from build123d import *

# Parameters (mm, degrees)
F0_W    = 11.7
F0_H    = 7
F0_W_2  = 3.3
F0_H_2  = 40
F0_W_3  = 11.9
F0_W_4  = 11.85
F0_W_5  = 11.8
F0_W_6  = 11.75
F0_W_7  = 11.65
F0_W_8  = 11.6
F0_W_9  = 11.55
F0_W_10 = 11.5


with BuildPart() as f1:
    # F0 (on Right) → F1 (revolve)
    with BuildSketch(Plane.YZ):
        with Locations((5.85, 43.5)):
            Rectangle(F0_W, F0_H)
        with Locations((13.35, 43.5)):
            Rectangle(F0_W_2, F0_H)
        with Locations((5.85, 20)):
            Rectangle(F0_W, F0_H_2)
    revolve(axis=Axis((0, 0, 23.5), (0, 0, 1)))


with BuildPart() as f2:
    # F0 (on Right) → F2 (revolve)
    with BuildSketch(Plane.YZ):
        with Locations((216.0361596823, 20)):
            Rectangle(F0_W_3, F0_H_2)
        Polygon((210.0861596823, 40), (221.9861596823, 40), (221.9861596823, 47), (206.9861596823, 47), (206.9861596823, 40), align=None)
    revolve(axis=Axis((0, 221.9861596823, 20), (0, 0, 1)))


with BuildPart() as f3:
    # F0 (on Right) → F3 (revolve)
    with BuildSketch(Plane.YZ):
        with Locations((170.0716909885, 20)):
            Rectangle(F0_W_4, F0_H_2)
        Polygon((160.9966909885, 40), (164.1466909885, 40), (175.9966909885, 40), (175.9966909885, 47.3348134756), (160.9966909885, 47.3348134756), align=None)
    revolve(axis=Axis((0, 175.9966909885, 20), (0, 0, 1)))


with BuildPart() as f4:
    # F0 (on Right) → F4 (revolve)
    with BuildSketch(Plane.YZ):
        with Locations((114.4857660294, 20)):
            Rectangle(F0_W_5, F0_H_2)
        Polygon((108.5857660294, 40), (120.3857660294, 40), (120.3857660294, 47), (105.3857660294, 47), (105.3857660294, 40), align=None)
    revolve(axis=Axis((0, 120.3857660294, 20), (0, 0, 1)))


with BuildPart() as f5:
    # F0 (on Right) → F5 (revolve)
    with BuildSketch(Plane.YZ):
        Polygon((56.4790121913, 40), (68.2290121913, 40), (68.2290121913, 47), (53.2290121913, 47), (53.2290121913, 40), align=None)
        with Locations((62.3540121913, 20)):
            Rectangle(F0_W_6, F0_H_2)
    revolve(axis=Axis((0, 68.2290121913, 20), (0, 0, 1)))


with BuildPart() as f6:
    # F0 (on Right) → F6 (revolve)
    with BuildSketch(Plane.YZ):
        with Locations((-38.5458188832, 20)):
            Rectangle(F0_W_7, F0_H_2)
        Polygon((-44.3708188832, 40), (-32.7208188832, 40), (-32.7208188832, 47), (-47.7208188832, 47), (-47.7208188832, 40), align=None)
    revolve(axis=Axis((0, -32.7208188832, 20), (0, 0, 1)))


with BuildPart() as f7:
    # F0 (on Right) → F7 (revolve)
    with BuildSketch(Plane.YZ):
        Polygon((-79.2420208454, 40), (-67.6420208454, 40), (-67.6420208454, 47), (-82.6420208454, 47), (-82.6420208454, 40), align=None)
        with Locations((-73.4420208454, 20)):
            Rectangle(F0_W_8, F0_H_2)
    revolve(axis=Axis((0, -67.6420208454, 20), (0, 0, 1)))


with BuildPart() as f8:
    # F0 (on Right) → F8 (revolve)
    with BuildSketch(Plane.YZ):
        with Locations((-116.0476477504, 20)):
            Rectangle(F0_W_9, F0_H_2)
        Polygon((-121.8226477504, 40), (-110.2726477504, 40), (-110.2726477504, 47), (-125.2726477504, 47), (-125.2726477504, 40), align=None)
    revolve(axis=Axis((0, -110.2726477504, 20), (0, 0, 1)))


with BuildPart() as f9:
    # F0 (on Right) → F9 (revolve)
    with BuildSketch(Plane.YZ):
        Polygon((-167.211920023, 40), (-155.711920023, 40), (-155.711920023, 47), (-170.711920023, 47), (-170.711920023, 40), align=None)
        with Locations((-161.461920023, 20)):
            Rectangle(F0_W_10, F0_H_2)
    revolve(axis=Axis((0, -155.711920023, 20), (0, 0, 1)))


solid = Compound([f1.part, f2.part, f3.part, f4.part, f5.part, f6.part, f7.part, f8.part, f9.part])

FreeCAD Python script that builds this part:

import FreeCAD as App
import Part
import Sketcher

doc = App.newDocument("Part")
body = doc.addObject("PartDesign::Body", "Body")

# Sketch on YZ plane
sketch1 = body.newObject("Sketcher::SketchObject", "Sketch")
sketch1.AttachmentSupport = (doc.getObject("YZ_Plane"), [""])
sketch1.MapMode = "FlatFace"
sketch1.addGeometry([
    Part.LineSegment(App.Vector(0, 47, 0), App.Vector(0, 0, 0)),  # 0
    Part.LineSegment(App.Vector(0, 0, 0), App.Vector(11.7, 0, 0)),  # 1
    Part.LineSegment(App.Vector(11.7, 0, 0), App.Vector(11.7, 40, 0)),  # 2
    Part.LineSegment(App.Vector(11.7, 40, 0), App.Vector(15, 40, 0)),  # 3
    Part.LineSegment(App.Vector(15, 40, 0), App.Vector(15, 47, 0)),  # 4
    Part.LineSegment(App.Vector(15, 47, 0), App.Vector(0, 47, 0)),  # 5
], False)
sketch1.addConstraint([
    Sketcher.Constraint("Coincident", 0, 2, 1, 1),
    Sketcher.Constraint("Coincident", 1, 2, 2, 1),
    Sketcher.Constraint("Coincident", 2, 2, 3, 1),
    Sketcher.Constraint("Coincident", 3, 2, 4, 1),
    Sketcher.Constraint("Coincident", 4, 2, 5, 1),
    Sketcher.Constraint("Coincident", 5, 2, 0, 1),
    Sketcher.Constraint("Vertical", 0),
    Sketcher.Constraint("Horizontal", 1),
    Sketcher.Constraint("Vertical", 2),
    Sketcher.Constraint("Horizontal", 3),
    Sketcher.Constraint("Vertical", 4),
    Sketcher.Constraint("Horizontal", 5),
    Sketcher.Constraint("Coincident", 0, 2, -1, 1),
    Sketcher.Constraint("DistanceX", 5, 2, 5, 1, 15.0),
    Sketcher.Constraint("DistanceY", 0, 2, 0, 1, 47.0),
    Sketcher.Constraint("DistanceY", 2, 1, 2, 2, 40.0),
    Sketcher.Constraint("DistanceX", 1, 1, 1, 2, 11.7),
])
revolution = body.newObject("PartDesign::Revolution", "Revolution")
revolution.Profile = sketch1
revolution.ReferenceAxis = (sketch1, ["V_Axis"])
revolution.Angle = 360
body2 = doc.addObject("PartDesign::Body", "Body001")

# Sketch on YZ plane
sketch2 = body2.newObject("Sketcher::SketchObject", "Sketch001")
sketch2.AttachmentSupport = (doc.getObject("YZ_Plane001"), [""])
sketch2.MapMode = "FlatFace"
sketch2.addGeometry([
    Part.LineSegment(App.Vector(210.1, 40, 0), App.Vector(210.1, 0, 0)),  # 0
    Part.LineSegment(App.Vector(210.1, 0, 0), App.Vector(222, 0, 0)),  # 1
    Part.LineSegment(App.Vector(222, 0, 0), App.Vector(222, 47, 0)),  # 2
    Part.LineSegment(App.Vector(222, 47, 0), App.Vector(207, 47, 0)),  # 3
    Part.LineSegment(App.Vector(207, 47, 0), App.Vector(207, 40, 0)),  # 4
    Part.LineSegment(App.Vector(207, 40, 0), App.Vector(210.1, 40, 0)),  # 5
], False)
sketch2.addGeometry(Part.LineSegment(App.Vector(222, 0, 0), App.Vector(222, 47, 0)), True)  # axis
sketch2.addConstraint([
    Sketcher.Constraint("Coincident", 0, 2, 1, 1),
    Sketcher.Constraint("Coincident", 1, 2, 2, 1),
    Sketcher.Constraint("Coincident", 2, 2, 3, 1),
    Sketcher.Constraint("Coincident", 3, 2, 4, 1),
    Sketcher.Constraint("Coincident", 4, 2, 5, 1),
    Sketcher.Constraint("Coincident", 5, 2, 0, 1),
    Sketcher.Constraint("Vertical", 0),
    Sketcher.Constraint("Horizontal", 1),
    Sketcher.Constraint("Vertical", 2),
    Sketcher.Constraint("Horizontal", 3),
    Sketcher.Constraint("Vertical", 4),
    Sketcher.Constraint("Horizontal", 5),
    Sketcher.Constraint("Vertical", 6),
    Sketcher.Constraint("Coincident", 6, 1, 1, 2),
    Sketcher.Constraint("PointOnObject", 0, 2, -1),
    Sketcher.Constraint("Horizontal", 3, 2, 6, 2),
    Sketcher.Constraint("DistanceX", 3, 2, 3, 1, 15.0),
    Sketcher.Constraint("DistanceY", 0, 2, 0, 1, 40.0),
    Sketcher.Constraint("DistanceY", 2, 1, 2, 2, 47.0),
    Sketcher.Constraint("DistanceX", 1, 1, 1, 2, 11.9),
    Sketcher.Constraint("DistanceX", -1, 1, 0, 2, 210.08616),
])
revolution2 = body2.newObject("PartDesign::Revolution", "Revolution001")
revolution2.Profile = sketch2
revolution2.ReferenceAxis = (sketch2, ["Axis0"])
revolution2.Angle = 360
body3 = doc.addObject("PartDesign::Body", "Body002")

# Sketch on YZ plane
sketch3 = body3.newObject("Sketcher::SketchObject", "Sketch002")
sketch3.AttachmentSupport = (doc.getObject("YZ_Plane002"), [""])
sketch3.MapMode = "FlatFace"
sketch3.addGeometry([
    Part.LineSegment(App.Vector(164.1, 40, 0), App.Vector(164.1, 0, 0)),  # 0
    Part.LineSegment(App.Vector(164.1, 0, 0), App.Vector(176, 0, 0)),  # 1
    Part.LineSegment(App.Vector(176, 0, 0), App.Vector(176, 47.3, 0)),  # 2
    Part.LineSegment(App.Vector(176, 47.3, 0), App.Vector(161, 47.3, 0)),  # 3
    Part.LineSegment(App.Vector(161, 47.3, 0), App.Vector(161, 40, 0)),  # 4
    Part.LineSegment(App.Vector(161, 40, 0), App.Vector(164.1, 40, 0)),  # 5
], False)
sketch3.addGeometry(Part.LineSegment(App.Vector(176, 0, 0), App.Vector(176, 47.3, 0)), True)  # axis
sketch3.addConstraint([
    Sketcher.Constraint("Coincident", 0, 2, 1, 1),
    Sketcher.Constraint("Coincident", 1, 2, 2, 1),
    Sketcher.Constraint("Coincident", 2, 2, 3, 1),
    Sketcher.Constraint("Coincident", 3, 2, 4, 1),
    Sketcher.Constraint("Coincident", 4, 2, 5, 1),
    Sketcher.Constraint("Coincident", 5, 2, 0, 1),
    Sketcher.Constraint("Vertical", 0),
    Sketcher.Constraint("Horizontal", 1),
    Sketcher.Constraint("Vertical", 2),
    Sketcher.Constraint("Horizontal", 3),
    Sketcher.Constraint("Vertical", 4),
    Sketcher.Constraint("Horizontal", 5),
    Sketcher.Constraint("Vertical", 6),
    Sketcher.Constraint("Coincident", 6, 1, 1, 2),
    Sketcher.Constraint("PointOnObject", 0, 2, -1),
    Sketcher.Constraint("Horizontal", 3, 2, 6, 2),
    Sketcher.Constraint("DistanceX", 3, 2, 3, 1, 15.0),
    Sketcher.Constraint("DistanceY", 0, 2, 0, 1, 40.0),
    Sketcher.Constraint("DistanceX", 1, 1, 1, 2, 11.85),
    Sketcher.Constraint("DistanceY", 2, 1, 2, 2, 47.334813),
    Sketcher.Constraint("DistanceX", -1, 1, 0, 2, 164.146691),
])
revolution3 = body3.newObject("PartDesign::Revolution", "Revolution002")
revolution3.Profile = sketch3
revolution3.ReferenceAxis = (sketch3, ["Axis0"])
revolution3.Angle = 360
body4 = doc.addObject("PartDesign::Body", "Body003")

# Sketch on YZ plane
sketch4 = body4.newObject("Sketcher::SketchObject", "Sketch003")
sketch4.AttachmentSupport = (doc.getObject("YZ_Plane003"), [""])
sketch4.MapMode = "FlatFace"
sketch4.addGeometry([
    Part.LineSegment(App.Vector(108.6, 40, 0), App.Vector(108.6, 0, 0)),  # 0
    Part.LineSegment(App.Vector(108.6, 0, 0), App.Vector(120.4, 0, 0)),  # 1
    Part.LineSegment(App.Vector(120.4, 0, 0), App.Vector(120.4, 47, 0)),  # 2
    Part.LineSegment(App.Vector(120.4, 47, 0), App.Vector(105.4, 47, 0)),  # 3
    Part.LineSegment(App.Vector(105.4, 47, 0), App.Vector(105.4, 40, 0)),  # 4
    Part.LineSegment(App.Vector(105.4, 40, 0), App.Vector(108.6, 40, 0)),  # 5
], False)
sketch4.addGeometry(Part.LineSegment(App.Vector(120.4, 0, 0), App.Vector(120.4, 47, 0)), True)  # axis
sketch4.addConstraint([
    Sketcher.Constraint("Coincident", 0, 2, 1, 1),
    Sketcher.Constraint("Coincident", 1, 2, 2, 1),
    Sketcher.Constraint("Coincident", 2, 2, 3, 1),
    Sketcher.Constraint("Coincident", 3, 2, 4, 1),
    Sketcher.Constraint("Coincident", 4, 2, 5, 1),
    Sketcher.Constraint("Coincident", 5, 2, 0, 1),
    Sketcher.Constraint("Vertical", 0),
    Sketcher.Constraint("Horizontal", 1),
    Sketcher.Constraint("Vertical", 2),
    Sketcher.Constraint("Horizontal", 3),
    Sketcher.Constraint("Vertical", 4),
    Sketcher.Constraint("Horizontal", 5),
    Sketcher.Constraint("Vertical", 6),
    Sketcher.Constraint("Coincident", 6, 1, 1, 2),
    Sketcher.Constraint("PointOnObject", 0, 2, -1),
    Sketcher.Constraint("Horizontal", 3, 2, 6, 2),
    Sketcher.Constraint("DistanceX", 3, 2, 3, 1, 15.0),
    Sketcher.Constraint("DistanceY", 0, 2, 0, 1, 40.0),
    Sketcher.Constraint("DistanceY", 2, 1, 2, 2, 47.0),
    Sketcher.Constraint("DistanceX", 1, 1, 1, 2, 11.8),
    Sketcher.Constraint("DistanceX", -1, 1, 0, 2, 108.585766),
])
revolution4 = body4.newObject("PartDesign::Revolution", "Revolution003")
revolution4.Profile = sketch4
revolution4.ReferenceAxis = (sketch4, ["Axis0"])
revolution4.Angle = 360
body5 = doc.addObject("PartDesign::Body", "Body004")

# Sketch on YZ plane
sketch5 = body5.newObject("Sketcher::SketchObject", "Sketch004")
sketch5.AttachmentSupport = (doc.getObject("YZ_Plane004"), [""])
sketch5.MapMode = "FlatFace"
sketch5.addGeometry([
    Part.LineSegment(App.Vector(68.2, 47, 0), App.Vector(53.2, 47, 0)),  # 0
    Part.LineSegment(App.Vector(53.2, 47, 0), App.Vector(53.2, 40, 0)),  # 1
    Part.LineSegment(App.Vector(53.2, 40, 0), App.Vector(56.5, 40, 0)),  # 2
    Part.LineSegment(App.Vector(56.5, 40, 0), App.Vector(56.5, 0, 0)),  # 3
    Part.LineSegment(App.Vector(56.5, 0, 0), App.Vector(68.2, 0, 0)),  # 4
    Part.LineSegment(App.Vector(68.2, 0, 0), App.Vector(68.2, 47, 0)),  # 5
], False)
sketch5.addGeometry(Part.LineSegment(App.Vector(68.2, 0, 0), App.Vector(68.2, 47, 0)), True)  # axis
sketch5.addConstraint([
    Sketcher.Constraint("Coincident", 0, 2, 1, 1),
    Sketcher.Constraint("Coincident", 1, 2, 2, 1),
    Sketcher.Constraint("Coincident", 2, 2, 3, 1),
    Sketcher.Constraint("Coincident", 3, 2, 4, 1),
    Sketcher.Constraint("Coincident", 4, 2, 5, 1),
    Sketcher.Constraint("Coincident", 5, 2, 0, 1),
    Sketcher.Constraint("Horizontal", 0),
    Sketcher.Constraint("Vertical", 1),
    Sketcher.Constraint("Horizontal", 2),
    Sketcher.Constraint("Vertical", 3),
    Sketcher.Constraint("Horizontal", 4),
    Sketcher.Constraint("Vertical", 5),
    Sketcher.Constraint("Vertical", 6),
    Sketcher.Constraint("Coincident", 6, 1, 4, 2),
    Sketcher.Constraint("PointOnObject", 3, 2, -1),
    Sketcher.Constraint("Horizontal", 0, 2, 6, 2),
    Sketcher.Constraint("DistanceX", 0, 2, 0, 1, 15.0),
    Sketcher.Constraint("DistanceY", 1, 2, 1, 1, 7.0),
    Sketcher.Constraint("DistanceY", 3, 2, 3, 1, 40.0),
    Sketcher.Constraint("DistanceX", 2, 1, 2, 2, 3.25),
    Sketcher.Constraint("DistanceX", -1, 1, 0, 2, 53.229012),
])
revolution5 = body5.newObject("PartDesign::Revolution", "Revolution004")
revolution5.Profile = sketch5
revolution5.ReferenceAxis = (sketch5, ["Axis0"])
revolution5.Angle = 360
body6 = doc.addObject("PartDesign::Body", "Body005")

# Sketch on YZ plane
sketch6 = body6.newObject("Sketcher::SketchObject", "Sketch005")
sketch6.AttachmentSupport = (doc.getObject("YZ_Plane005"), [""])
sketch6.MapMode = "FlatFace"
sketch6.addGeometry([
    Part.LineSegment(App.Vector(-44.4, 40, 0), App.Vector(-44.4, 0, 0)),  # 0
    Part.LineSegment(App.Vector(-44.4, 0, 0), App.Vector(-32.7, 0, 0)),  # 1
    Part.LineSegment(App.Vector(-32.7, 0, 0), App.Vector(-32.7, 47, 0)),  # 2
    Part.LineSegment(App.Vector(-32.7, 47, 0), App.Vector(-47.7, 47, 0)),  # 3
    Part.LineSegment(App.Vector(-47.7, 47, 0), App.Vector(-47.7, 40, 0)),  # 4
    Part.LineSegment(App.Vector(-47.7, 40, 0), App.Vector(-44.4, 40, 0)),  # 5
], False)
sketch6.addGeometry(Part.LineSegment(App.Vector(-32.7, 0, 0), App.Vector(-32.7, 47, 0)), True)  # axis
sketch6.addConstraint([
    Sketcher.Constraint("Coincident", 0, 2, 1, 1),
    Sketcher.Constraint("Coincident", 1, 2, 2, 1),
    Sketcher.Constraint("Coincident", 2, 2, 3, 1),
    Sketcher.Constraint("Coincident", 3, 2, 4, 1),
    Sketcher.Constraint("Coincident", 4, 2, 5, 1),
    Sketcher.Constraint("Coincident", 5, 2, 0, 1),
    Sketcher.Constraint("Vertical", 0),
    Sketcher.Constraint("Horizontal", 1),
    Sketcher.Constraint("Vertical", 2),
    Sketcher.Constraint("Horizontal", 3),
    Sketcher.Constraint("Vertical", 4),
    Sketcher.Constraint("Horizontal", 5),
    Sketcher.Constraint("Vertical", 6),
    Sketcher.Constraint("Coincident", 6, 1, 1, 2),
    Sketcher.Constraint("PointOnObject", 0, 2, -1),
    Sketcher.Constraint("Horizontal", 3, 2, 6, 2),
    Sketcher.Constraint("DistanceX", 3, 2, 3, 1, 15.0),
    Sketcher.Constraint("DistanceY", 0, 2, 0, 1, 40.0),
    Sketcher.Constraint("DistanceY", 2, 1, 2, 2, 47.0),
    Sketcher.Constraint("DistanceX", 1, 1, 1, 2, 11.65),
    Sketcher.Constraint("DistanceX", 0, 2, -1, 1, 44.370819),
])
revolution6 = body6.newObject("PartDesign::Revolution", "Revolution005")
revolution6.Profile = sketch6
revolution6.ReferenceAxis = (sketch6, ["Axis0"])
revolution6.Angle = 360
body7 = doc.addObject("PartDesign::Body", "Body006")

# Sketch on YZ plane
sketch7 = body7.newObject("Sketcher::SketchObject", "Sketch006")
sketch7.AttachmentSupport = (doc.getObject("YZ_Plane006"), [""])
sketch7.MapMode = "FlatFace"
sketch7.addGeometry([
    Part.LineSegment(App.Vector(-67.6, 47, 0), App.Vector(-82.6, 47, 0)),  # 0
    Part.LineSegment(App.Vector(-82.6, 47, 0), App.Vector(-82.6, 40, 0)),  # 1
    Part.LineSegment(App.Vector(-82.6, 40, 0), App.Vector(-79.2, 40, 0)),  # 2
    Part.LineSegment(App.Vector(-79.2, 40, 0), App.Vector(-79.2, 0, 0)),  # 3
    Part.LineSegment(App.Vector(-79.2, 0, 0), App.Vector(-67.6, 0, 0)),  # 4
    Part.LineSegment(App.Vector(-67.6, 0, 0), App.Vector(-67.6, 47, 0)),  # 5
], False)
sketch7.addGeometry(Part.LineSegment(App.Vector(-67.6, 0, 0), App.Vector(-67.6, 47, 0)), True)  # axis
sketch7.addConstraint([
    Sketcher.Constraint("Coincident", 0, 2, 1, 1),
    Sketcher.Constraint("Coincident", 1, 2, 2, 1),
    Sketcher.Constraint("Coincident", 2, 2, 3, 1),
    Sketcher.Constraint("Coincident", 3, 2, 4, 1),
    Sketcher.Constraint("Coincident", 4, 2, 5, 1),
    Sketcher.Constraint("Coincident", 5, 2, 0, 1),
    Sketcher.Constraint("Horizontal", 0),
    Sketcher.Constraint("Vertical", 1),
    Sketcher.Constraint("Horizontal", 2),
    Sketcher.Constraint("Vertical", 3),
    Sketcher.Constraint("Horizontal", 4),
    Sketcher.Constraint("Vertical", 5),
    Sketcher.Constraint("Vertical", 6),
    Sketcher.Constraint("Coincident", 6, 1, 4, 2),
    Sketcher.Constraint("PointOnObject", 3, 2, -1),
    Sketcher.Constraint("Horizontal", 0, 2, 6, 2),
    Sketcher.Constraint("DistanceX", 0, 2, 0, 1, 15.0),
    Sketcher.Constraint("DistanceY", 1, 2, 1, 1, 7.0),
    Sketcher.Constraint("DistanceY", 3, 2, 3, 1, 40.0),
    Sketcher.Constraint("DistanceX", 2, 1, 2, 2, 3.4),
    Sketcher.Constraint("DistanceX", 0, 2, -1, 1, 82.642021),
])
revolution7 = body7.newObject("PartDesign::Revolution", "Revolution006")
revolution7.Profile = sketch7
revolution7.ReferenceAxis = (sketch7, ["Axis0"])
revolution7.Angle = 360
body8 = doc.addObject("PartDesign::Body", "Body007")

# Sketch on YZ plane
sketch8 = body8.newObject("Sketcher::SketchObject", "Sketch007")
sketch8.AttachmentSupport = (doc.getObject("YZ_Plane007"), [""])
sketch8.MapMode = "FlatFace"
sketch8.addGeometry([
    Part.LineSegment(App.Vector(-121.8, 40, 0), App.Vector(-121.8, 0, 0)),  # 0
    Part.LineSegment(App.Vector(-121.8, 0, 0), App.Vector(-110.3, 0, 0)),  # 1
    Part.LineSegment(App.Vector(-110.3, 0, 0), App.Vector(-110.3, 47, 0)),  # 2
    Part.LineSegment(App.Vector(-110.3, 47, 0), App.Vector(-125.3, 47, 0)),  # 3
    Part.LineSegment(App.Vector(-125.3, 47, 0), App.Vector(-125.3, 40, 0)),  # 4
    Part.LineSegment(App.Vector(-125.3, 40, 0), App.Vector(-121.8, 40, 0)),  # 5
], False)
sketch8.addGeometry(Part.LineSegment(App.Vector(-110.3, 0, 0), App.Vector(-110.3, 47, 0)), True)  # axis
sketch8.addConstraint([
    Sketcher.Constraint("Coincident", 0, 2, 1, 1),
    Sketcher.Constraint("Coincident", 1, 2, 2, 1),
    Sketcher.Constraint("Coincident", 2, 2, 3, 1),
    Sketcher.Constraint("Coincident", 3, 2, 4, 1),
    Sketcher.Constraint("Coincident", 4, 2, 5, 1),
    Sketcher.Constraint("Coincident", 5, 2, 0, 1),
    Sketcher.Constraint("Vertical", 0),
    Sketcher.Constraint("Horizontal", 1),
    Sketcher.Constraint("Vertical", 2),
    Sketcher.Constraint("Horizontal", 3),
    Sketcher.Constraint("Vertical", 4),
    Sketcher.Constraint("Horizontal", 5),
    Sketcher.Constraint("Vertical", 6),
    Sketcher.Constraint("Coincident", 6, 1, 1, 2),
    Sketcher.Constraint("PointOnObject", 0, 2, -1),
    Sketcher.Constraint("Horizontal", 3, 2, 6, 2),
    Sketcher.Constraint("DistanceX", 3, 2, 3, 1, 15.0),
    Sketcher.Constraint("DistanceY", 0, 2, 0, 1, 40.0),
    Sketcher.Constraint("DistanceY", 2, 1, 2, 2, 47.0),
    Sketcher.Constraint("DistanceX", 1, 1, 1, 2, 11.55),
    Sketcher.Constraint("DistanceX", 0, 2, -1, 1, 121.822648),
])
revolution8 = body8.newObject("PartDesign::Revolution", "Revolution007")
revolution8.Profile = sketch8
revolution8.ReferenceAxis = (sketch8, ["Axis0"])
revolution8.Angle = 360
body9 = doc.addObject("PartDesign::Body", "Body008")

# Sketch on YZ plane
sketch9 = body9.newObject("Sketcher::SketchObject", "Sketch008")
sketch9.AttachmentSupport = (doc.getObject("YZ_Plane008"), [""])
sketch9.MapMode = "FlatFace"
sketch9.addGeometry([
    Part.LineSegment(App.Vector(-155.7, 47, 0), App.Vector(-170.7, 47, 0)),  # 0
    Part.LineSegment(App.Vector(-170.7, 47, 0), App.Vector(-170.7, 40, 0)),  # 1
    Part.LineSegment(App.Vector(-170.7, 40, 0), App.Vector(-167.2, 40, 0)),  # 2
    Part.LineSegment(App.Vector(-167.2, 40, 0), App.Vector(-167.2, 0, 0)),  # 3
    Part.LineSegment(App.Vector(-167.2, 0, 0), App.Vector(-155.7, 0, 0)),  # 4
    Part.LineSegment(App.Vector(-155.7, 0, 0), App.Vector(-155.7, 47, 0)),  # 5
], False)
sketch9.addGeometry(Part.LineSegment(App.Vector(-155.7, 0, 0), App.Vector(-155.7, 47, 0)), True)  # axis
sketch9.addConstraint([
    Sketcher.Constraint("Coincident", 0, 2, 1, 1),
    Sketcher.Constraint("Coincident", 1, 2, 2, 1),
    Sketcher.Constraint("Coincident", 2, 2, 3, 1),
    Sketcher.Constraint("Coincident", 3, 2, 4, 1),
    Sketcher.Constraint("Coincident", 4, 2, 5, 1),
    Sketcher.Constraint("Coincident", 5, 2, 0, 1),
    Sketcher.Constraint("Horizontal", 0),
    Sketcher.Constraint("Vertical", 1),
    Sketcher.Constraint("Horizontal", 2),
    Sketcher.Constraint("Vertical", 3),
    Sketcher.Constraint("Horizontal", 4),
    Sketcher.Constraint("Vertical", 5),
    Sketcher.Constraint("Vertical", 6),
    Sketcher.Constraint("Coincident", 6, 1, 4, 2),
    Sketcher.Constraint("PointOnObject", 3, 2, -1),
    Sketcher.Constraint("Horizontal", 0, 2, 6, 2),
    Sketcher.Constraint("DistanceX", 0, 2, 0, 1, 15.0),
    Sketcher.Constraint("DistanceY", 1, 2, 1, 1, 7.0),
    Sketcher.Constraint("DistanceY", 3, 2, 3, 1, 40.0),
    Sketcher.Constraint("DistanceX", 2, 1, 2, 2, 3.5),
    Sketcher.Constraint("DistanceX", 0, 2, -1, 1, 170.71192),
])
revolution9 = body9.newObject("PartDesign::Revolution", "Revolution008")
revolution9.Profile = sketch9
revolution9.ReferenceAxis = (sketch9, ["Axis0"])
revolution9.Angle = 360

doc.recompute()
